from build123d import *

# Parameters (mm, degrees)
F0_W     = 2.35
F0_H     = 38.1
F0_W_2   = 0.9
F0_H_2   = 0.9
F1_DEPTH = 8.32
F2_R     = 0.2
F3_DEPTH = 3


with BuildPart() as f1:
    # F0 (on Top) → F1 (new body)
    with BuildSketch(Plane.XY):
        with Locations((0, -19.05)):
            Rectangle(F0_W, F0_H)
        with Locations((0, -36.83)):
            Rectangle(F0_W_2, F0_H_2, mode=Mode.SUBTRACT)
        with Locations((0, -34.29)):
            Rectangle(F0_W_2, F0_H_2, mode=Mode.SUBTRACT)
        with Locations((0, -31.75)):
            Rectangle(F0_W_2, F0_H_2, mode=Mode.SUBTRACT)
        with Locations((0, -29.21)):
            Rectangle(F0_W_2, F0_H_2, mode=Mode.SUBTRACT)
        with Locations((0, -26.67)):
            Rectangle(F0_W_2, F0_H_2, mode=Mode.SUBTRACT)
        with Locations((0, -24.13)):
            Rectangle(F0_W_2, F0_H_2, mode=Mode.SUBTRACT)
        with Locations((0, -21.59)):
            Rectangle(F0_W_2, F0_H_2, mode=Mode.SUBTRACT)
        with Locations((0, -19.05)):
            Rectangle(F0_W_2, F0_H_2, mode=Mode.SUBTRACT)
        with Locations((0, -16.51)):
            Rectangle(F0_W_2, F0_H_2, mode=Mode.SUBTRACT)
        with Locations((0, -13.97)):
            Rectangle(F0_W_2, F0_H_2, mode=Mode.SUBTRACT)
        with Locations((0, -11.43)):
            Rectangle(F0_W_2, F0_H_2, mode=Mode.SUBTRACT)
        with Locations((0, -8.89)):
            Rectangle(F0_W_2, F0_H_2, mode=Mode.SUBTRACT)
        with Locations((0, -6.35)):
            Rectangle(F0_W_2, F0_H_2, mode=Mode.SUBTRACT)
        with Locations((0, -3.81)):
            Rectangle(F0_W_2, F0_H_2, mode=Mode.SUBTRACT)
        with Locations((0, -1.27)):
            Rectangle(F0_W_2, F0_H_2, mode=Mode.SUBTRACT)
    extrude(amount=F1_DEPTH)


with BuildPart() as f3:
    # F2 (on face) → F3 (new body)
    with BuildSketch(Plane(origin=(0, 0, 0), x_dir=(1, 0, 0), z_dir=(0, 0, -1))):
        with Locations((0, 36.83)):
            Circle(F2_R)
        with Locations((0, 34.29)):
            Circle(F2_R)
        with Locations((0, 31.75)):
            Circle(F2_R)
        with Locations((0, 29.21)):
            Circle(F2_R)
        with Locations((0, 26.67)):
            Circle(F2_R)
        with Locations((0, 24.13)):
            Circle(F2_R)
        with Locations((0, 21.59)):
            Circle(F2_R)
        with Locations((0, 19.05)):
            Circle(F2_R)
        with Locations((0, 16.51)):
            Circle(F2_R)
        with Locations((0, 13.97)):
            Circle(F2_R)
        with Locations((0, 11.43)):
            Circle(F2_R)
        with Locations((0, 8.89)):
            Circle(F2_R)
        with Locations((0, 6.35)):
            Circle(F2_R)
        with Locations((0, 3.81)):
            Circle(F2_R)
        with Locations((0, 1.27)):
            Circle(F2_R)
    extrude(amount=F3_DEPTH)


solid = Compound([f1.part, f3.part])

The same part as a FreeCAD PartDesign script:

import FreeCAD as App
import Part
import Sketcher

V = App.Vector

doc = App.newDocument("Part")
body = doc.addObject("PartDesign::Body", "Body")

sketch1 = doc.addObject("Sketcher::SketchObject", "Sketch")
body.addObject(sketch1)
sketch1.AttachmentSupport = (doc.XY_Plane, [""])
sketch1.MapMode = "FlatFace"
sketch1.addGeometry([
    Part.LineSegment(V(-1.2, 0, 0), V(-1.2, -38.1, 0)),
    Part.LineSegment(V(-1.2, -38.1, 0), V(1.2, -38.1, 0)),
    Part.LineSegment(V(1.2, -38.1, 0), V(1.2, 0, 0)),
    Part.LineSegment(V(1.2, 0, 0), V(-1.2, 0, 0)),
    Part.LineSegment(V(0.5, -37.3, 0), V(-0.5, -37.3, 0)),
    Part.LineSegment(V(-0.5, -37.3, 0), V(-0.5, -36.4, 0)),
    Part.LineSegment(V(-0.5, -36.4, 0), V(0.5, -36.4, 0)),
    Part.LineSegment(V(0.5, -36.4, 0), V(0.5, -37.3, 0)),
    Part.LineSegment(V(0.5, -34.7, 0), V(-0.5, -34.7, 0)),
    Part.LineSegment(V(-0.5, -34.7, 0), V(-0.5, -33.8, 0)),
    Part.LineSegment(V(-0.5, -33.8, 0), V(0.5, -33.8, 0)),
    Part.LineSegment(V(0.5, -33.8, 0), V(0.5, -34.7, 0)),
    Part.LineSegment(V(0.5, -32.2, 0), V(-0.5, -32.2, 0)),
    Part.LineSegment(V(-0.5, -32.2, 0), V(-0.5, -31.3, 0)),
    Part.LineSegment(V(-0.5, -31.3, 0), V(0.5, -31.3, 0)),
    Part.LineSegment(V(0.5, -31.3, 0), V(0.5, -32.2, 0)),
    Part.LineSegment(V(0.5, -29.7, 0), V(-0.5, -29.7, 0)),
    Part.LineSegment(V(-0.5, -29.7, 0), V(-0.5, -28.8, 0)),
    Part.LineSegment(V(-0.5, -28.8, 0), V(0.5, -28.8, 0)),
    Part.LineSegment(V(0.5, -28.8, 0), V(0.5, -29.7, 0)),
    Part.LineSegment(V(0.5, -27.1, 0), V(-0.5, -27.1, 0)),
    Part.LineSegment(V(-0.5, -27.1, 0), V(-0.5, -26.2, 0)),
    Part.LineSegment(V(-0.5, -26.2, 0), V(0.5, -26.2, 0)),
    Part.LineSegment(V(0.5, -26.2, 0), V(0.5, -27.1, 0)),
    Part.LineSegment(V(0.5, -24.6, 0), V(-0.5, -24.6, 0)),
    Part.LineSegment(V(-0.5, -24.6, 0), V(-0.5, -23.7, 0)),
    Part.LineSegment(V(-0.5, -23.7, 0), V(0.5, -23.7, 0)),
    Part.LineSegment(V(0.5, -23.7, 0), V(0.5, -24.6, 0)),
    Part.LineSegment(V(0.5, -22, 0), V(-0.5, -22, 0)),
    Part.LineSegment(V(-0.5, -22, 0), V(-0.5, -21.1, 0)),
    Part.LineSegment(V(-0.5, -21.1, 0), V(0.5, -21.1, 0)),
    Part.LineSegment(V(0.5, -21.1, 0), V(0.5, -22, 0)),
    Part.LineSegment(V(0.5, -19.5, 0), V(-0.5, -19.5, 0)),
    Part.LineSegment(V(-0.5, -19.5, 0), V(-0.5, -18.6, 0)),
    Part.LineSegment(V(-0.5, -18.6, 0), V(0.5, -18.6, 0)),
    Part.LineSegment(V(0.5, -18.6, 0), V(0.5, -19.5, 0)),
    Part.LineSegment(V(0.5, -17, 0), V(-0.5, -17, 0)),
    Part.LineSegment(V(-0.5, -17, 0), V(-0.5, -16.1, 0)),
    Part.LineSegment(V(-0.5, -16.1, 0), V(0.5, -16.1, 0)),
    Part.LineSegment(V(0.5, -16.1, 0), V(0.5, -17, 0)),
    Part.LineSegment(V(0.5, -14.4, 0), V(-0.5, -14.4, 0)),
    Part.LineSegment(V(-0.5, -14.4, 0), V(-0.5, -13.5, 0)),
    Part.LineSegment(V(-0.5, -13.5, 0), V(0.5, -13.5, 0)),
    Part.LineSegment(V(0.5, -13.5, 0), V(0.5, -14.4, 0)),
    Part.LineSegment(V(0.5, -11.9, 0), V(-0.5, -11.9, 0)),
    Part.LineSegment(V(-0.5, -11.9, 0), V(-0.5, -11, 0)),
    Part.LineSegment(V(-0.5, -11, 0), V(0.5, -11, 0)),
    Part.LineSegment(V(0.5, -11, 0), V(0.5, -11.9, 0)),
    Part.LineSegment(V(0.5, -9.3, 0), V(-0.5, -9.3, 0)),
    Part.LineSegment(V(-0.5, -9.3, 0), V(-0.5, -8.4, 0)),
    Part.LineSegment(V(-0.5, -8.4, 0), V(0.5, -8.4, 0)),
    Part.LineSegment(V(0.5, -8.4, 0), V(0.5, -9.3, 0)),
    Part.LineSegment(V(0.5, -6.8, 0), V(-0.5, -6.8, 0)),
    Part.LineSegment(V(-0.5, -6.8, 0), V(-0.5, -5.9, 0)),
    Part.LineSegment(V(-0.5, -5.9, 0), V(0.5, -5.9, 0)),
    Part.LineSegment(V(0.5, -5.9, 0), V(0.5, -6.8, 0)),
    Part.LineSegment(V(0.5, -4.3, 0), V(-0.5, -4.3, 0)),
    Part.LineSegment(V(-0.5, -4.3, 0), V(-0.5, -3.4, 0)),
    Part.LineSegment(V(-0.5, -3.4, 0), V(0.5, -3.4, 0)),
    Part.LineSegment(V(0.5, -3.4, 0), V(0.5, -4.3, 0)),
    Part.LineSegment(V(0.5, -1.7, 0), V(-0.5, -1.7, 0)),
    Part.LineSegment(V(-0.5, -1.7, 0), V(-0.5, -0.8, 0)),
    Part.LineSegment(V(-0.5, -0.8, 0), V(0.5, -0.8, 0)),
    Part.LineSegment(V(0.5, -0.8, 0), V(0.5, -1.7, 0)),
], False)
sketch1.addConstraint([
    Sketcher.Constraint("Coincident", 0, 2, 1, 1),
    Sketcher.Constraint("Coincident", 1, 2, 2, 1),
    Sketcher.Constraint("Coincident", 2, 2, 3, 1),
    Sketcher.Constraint("Coincident", 3, 2, 0, 1),
    Sketcher.Constraint("Coincident", 4, 2, 5, 1),
    Sketcher.Constraint("Coincident", 5, 2, 6, 1),
    Sketcher.Constraint("Coincident", 6, 2, 7, 1),
    Sketcher.Constraint("Coincident", 7, 2, 4, 1),
    Sketcher.Constraint("Coincident", 8, 2, 9, 1),
    Sketcher.Constraint("Coincident", 9, 2, 10, 1),
    Sketcher.Constraint("Coincident", 10, 2, 11, 1),
    Sketcher.Constraint("Coincident", 11, 2, 8, 1),
    Sketcher.Constraint("Coincident", 12, 2, 13, 1),
    Sketcher.Constraint("Coincident", 13, 2, 14, 1),
    Sketcher.Constraint("Coincident", 14, 2, 15, 1),
    Sketcher.Constraint("Coincident", 15, 2, 12, 1),
    Sketcher.Constraint("Coincident", 16, 2, 17, 1),
    Sketcher.Constraint("Coincident", 17, 2, 18, 1),
    Sketcher.Constraint("Coincident", 18, 2, 19, 1),
    Sketcher.Constraint("Coincident", 19, 2, 16, 1),
    Sketcher.Constraint("Coincident", 20, 2, 21, 1),
    Sketcher.Constraint("Coincident", 21, 2, 22, 1),
    Sketcher.Constraint("Coincident", 22, 2, 23, 1),
    Sketcher.Constraint("Coincident", 23, 2, 20, 1),
    Sketcher.Constraint("Coincident", 24, 2, 25, 1),
    Sketcher.Constraint("Coincident", 25, 2, 26, 1),
    Sketcher.Constraint("Coincident", 26, 2, 27, 1),
    Sketcher.Constraint("Coincident", 27, 2, 24, 1),
    Sketcher.Constraint("Coincident", 28, 2, 29, 1),
    Sketcher.Constraint("Coincident", 29, 2, 30, 1),
    Sketcher.Constraint("Coincident", 30, 2, 31, 1),
    Sketcher.Constraint("Coincident", 31, 2, 28, 1),
    Sketcher.Constraint("Coincident", 32, 2, 33, 1),
    Sketcher.Constraint("Coincident", 33, 2, 34, 1),
    Sketcher.Constraint("Coincident", 34, 2, 35, 1),
    Sketcher.Constraint("Coincident", 35, 2, 32, 1),
    Sketcher.Constraint("Coincident", 36, 2, 37, 1),
    Sketcher.Constraint("Coincident", 37, 2, 38, 1),
    Sketcher.Constraint("Coincident", 38, 2, 39, 1),
    Sketcher.Constraint("Coincident", 39, 2, 36, 1),
    Sketcher.Constraint("Coincident", 40, 2, 41, 1),
    Sketcher.Constraint("Coincident", 41, 2, 42, 1),
    Sketcher.Constraint("Coincident", 42, 2, 43, 1),
    Sketcher.Constraint("Coincident", 43, 2, 40, 1),
    Sketcher.Constraint("Coincident", 44, 2, 45, 1),
    Sketcher.Constraint("Coincident", 45, 2, 46, 1),
    Sketcher.Constraint("Coincident", 46, 2, 47, 1),
    Sketcher.Constraint("Coincident", 47, 2, 44, 1),
    Sketcher.Constraint("Coincident", 48, 2, 49, 1),
    Sketcher.Constraint("Coincident", 49, 2, 50, 1),
    Sketcher.Constraint("Coincident", 50, 2, 51, 1),
    Sketcher.Constraint("Coincident", 51, 2, 48, 1),
    Sketcher.Constraint("Coincident", 52, 2, 53, 1),
    Sketcher.Constraint("Coincident", 53, 2, 54, 1),
    Sketcher.Constraint("Coincident", 54, 2, 55, 1),
    Sketcher.Constraint("Coincident", 55, 2, 52, 1),
    Sketcher.Constraint("Coincident", 56, 2, 57, 1),
    Sketcher.Constraint("Coincident", 57, 2, 58, 1),
    Sketcher.Constraint("Coincident", 58, 2, 59, 1),
    Sketcher.Constraint("Coincident", 59, 2, 56, 1),
    Sketcher.Constraint("Coincident", 60, 2, 61, 1),
    Sketcher.Constraint("Coincident", 61, 2, 62, 1),
    Sketcher.Constraint("Coincident", 62, 2, 63, 1),
    Sketcher.Constraint("Coincident", 63, 2, 60, 1),
    Sketcher.Constraint("Vertical", 0),
    Sketcher.Constraint("Horizontal", 1),
    Sketcher.Constraint("Vertical", 2),
    Sketcher.Constraint("Horizontal", 3),
    Sketcher.Constraint("Horizontal", 4),
    Sketcher.Constraint("Vertical", 5),
    Sketcher.Constraint("Horizontal", 6),
    Sketcher.Constraint("Vertical", 7),
    Sketcher.Constraint("Horizontal", 8),
    Sketcher.Constraint("Vertical", 9),
    Sketcher.Constraint("Horizontal", 10),
    Sketcher.Constraint("Vertical", 11),
    Sketcher.Constraint("Horizontal", 12),
    Sketcher.Constraint("Vertical", 13),
    Sketcher.Constraint("Horizontal", 14),
    Sketcher.Constraint("Vertical", 15),
    Sketcher.Constraint("Horizontal", 16),
    Sketcher.Constraint("Vertical", 17),
    Sketcher.Constraint("Horizontal", 18),
    Sketcher.Constraint("Vertical", 19),
    Sketcher.Constraint("Horizontal", 20),
    Sketcher.Constraint("Vertical", 21),
    Sketcher.Constraint("Horizontal", 22),
    Sketcher.Constraint("Vertical", 23),
    Sketcher.Constraint("Horizontal", 24),
    Sketcher.Constraint("Vertical", 25),
    Sketcher.Constraint("Horizontal", 26),
    Sketcher.Constraint("Vertical", 27),
    Sketcher.Constraint("Horizontal", 28),
    Sketcher.Constraint("Vertical", 29),
    Sketcher.Constraint("Horizontal", 30),
    Sketcher.Constraint("Vertical", 31),
    Sketcher.Constraint("Horizontal", 32),
    Sketcher.Constraint("Vertical", 33),
    Sketcher.Constraint("Horizontal", 34),
    Sketcher.Constraint("Vertical", 35),
    Sketcher.Constraint("Horizontal", 36),
    Sketcher.Constraint("Vertical", 37),
    Sketcher.Constraint("Horizontal", 38),
    Sketcher.Constraint("Vertical", 39),
    Sketcher.Constraint("Horizontal", 40),
    Sketcher.Constraint("Vertical", 41),
    Sketcher.Constraint("Horizontal", 42),
    Sketcher.Constraint("Vertical", 43),
    Sketcher.Constraint("Horizontal", 44),
    Sketcher.Constraint("Vertical", 45),
    Sketcher.Constraint("Horizontal", 46),
    Sketcher.Constraint("Vertical", 47),
    Sketcher.Constraint("Horizontal", 48),
    Sketcher.Constraint("Vertical", 49),
    Sketcher.Constraint("Horizontal", 50),
    Sketcher.Constraint("Vertical", 51),
    Sketcher.Constraint("Horizontal", 52),
    Sketcher.Constraint("Vertical", 53),
    Sketcher.Constraint("Horizontal", 54),
    Sketcher.Constraint("Vertical", 55),
    Sketcher.Constraint("Horizontal", 56),
    Sketcher.Constraint("Vertical", 57),
    Sketcher.Constraint("Horizontal", 58),
    Sketcher.Constraint("Vertical", 59),
    Sketcher.Constraint("Horizontal", 60),
    Sketcher.Constraint("Vertical", 61),
    Sketcher.Constraint("Horizontal", 62),
    Sketcher.Constraint("Vertical", 63),
    Sketcher.Constraint("Symmetric", 2, 2, 3, 2, -1, 1),
    Sketcher.Constraint("Vertical", 5, 2, 8, 2),
    Sketcher.Constraint("Vertical", 7, 2, 10, 2),
    Sketcher.Constraint("Vertical", 9, 2, 12, 2),
    Sketcher.Constraint("Vertical", 11, 2, 14, 2),
    Sketcher.Constraint("Vertical", 13, 2, 16, 2),
    Sketcher.Constraint("Vertical", 15, 2, 18, 2),
    Sketcher.Constraint("Vertical", 17, 2, 20, 2),
    Sketcher.Constraint("Vertical", 19, 2, 22, 2),
    Sketcher.Constraint("Vertical", 21, 2, 24, 2),
    Sketcher.Constraint("Vertical", 23, 2, 26, 2),
    Sketcher.Constraint("Vertical", 25, 2, 28, 2),
    Sketcher.Constraint("Vertical", 27, 2, 30, 2),
    Sketcher.Constraint("Vertical", 29, 2, 32, 2),
    Sketcher.Constraint("Vertical", 31, 2, 34, 2),
    Sketcher.Constraint("Vertical", 33, 2, 36, 2),
    Sketcher.Constraint("Vertical", 35, 2, 38, 2),
    Sketcher.Constraint("Vertical", 37, 2, 40, 2),
    Sketcher.Constraint("Vertical", 39, 2, 42, 2),
    Sketcher.Constraint("Vertical", 41, 2, 44, 2),
    Sketcher.Constraint("Vertical", 43, 2, 46, 2),
    Sketcher.Constraint("Vertical", 45, 2, 48, 2),
    Sketcher.Constraint("Vertical", 47, 2, 50, 2),
    Sketcher.Constraint("Vertical", 49, 2, 52, 2),
    Sketcher.Constraint("Vertical", 51, 2, 54, 2),
    Sketcher.Constraint("Vertical", 53, 2, 56, 2),
    Sketcher.Constraint("Vertical", 55, 2, 58, 2),
    Sketcher.Constraint("Vertical", 57, 2, 60, 2),
    Sketcher.Constraint("Vertical", 59, 2, 62, 2),
    Sketcher.Constraint("Equal", 62, 5),
    Sketcher.Constraint("Equal", 7, 9),
    Sketcher.Constraint("Equal", 11, 13),
    Sketcher.Constraint("Equal", 15, 17),
    Sketcher.Constraint("Equal", 19, 21),
    Sketcher.Constraint("Equal", 23, 25),
    Sketcher.Constraint("Equal", 27, 29),
    Sketcher.Constraint("Equal", 31, 33),
    Sketcher.Constraint("Equal", 35, 37),
    Sketcher.Constraint("Equal", 39, 41),
    Sketcher.Constraint("Equal", 43, 45),
    Sketcher.Constraint("Equal", 47, 49),
    Sketcher.Constraint("Equal", 51, 53),
    Sketcher.Constraint("Equal", 55, 57),
    Sketcher.Constraint("Equal", 59, 61),
    Sketcher.Constraint("DistanceX", 4, 2, 4, 1, 0.9),
    Sketcher.Constraint("DistanceY", 0, 2, 0, 1, 38.1),
    Sketcher.Constraint("DistanceX", 1, 1, 1, 2, 2.35),
    Sketcher.Constraint("DistanceY", 12, 2, -1, 1, 32.2),
    Sketcher.Constraint("DistanceY", 32, 2, -1, 1, 19.5),
    Sketcher.Constraint("DistanceY", 52, 2, -1, 1, 6.8),
    Sketcher.Constraint("DistanceX", 4, 2, -1, 1, 0.45),
    Sketcher.Constraint("DistanceY", 4, 2, -1, 1, 37.28),
    Sketcher.Constraint("DistanceY", 8, 2, -1, 1, 34.74),
    Sketcher.Constraint("DistanceY", 16, 2, -1, 1, 29.66),
    Sketcher.Constraint("DistanceY", 20, 2, -1, 1, 27.12),
    Sketcher.Constraint("DistanceY", 24, 2, -1, 1, 24.58),
    Sketcher.Constraint("DistanceY", 28, 2, -1, 1, 22.04),
    Sketcher.Constraint("DistanceY", 36, 2, -1, 1, 16.96),
    Sketcher.Constraint("DistanceY", 40, 2, -1, 1, 14.42),
    Sketcher.Constraint("DistanceY", 44, 2, -1, 1, 11.88),
    Sketcher.Constraint("DistanceY", 48, 2, -1, 1, 9.34),
    Sketcher.Constraint("DistanceY", 56, 2, -1, 1, 4.26),
    Sketcher.Constraint("DistanceY", 60, 2, -1, 1, 1.72),
])
pad1 = doc.addObject("PartDesign::Pad", "Pad")
body.addObject(pad1)
pad1.Profile = sketch1
pad1.Length = 8.32
body2 = doc.addObject("PartDesign::Body", "Body001")
body2.AllowCompound = True

sketch2 = doc.addObject("Sketcher::SketchObject", "Sketch001")
body2.addObject(sketch2)
sketch2.AttachmentSupport = (doc.getObject("XY_Plane001"), [""])
sketch2.MapMode = "FlatFace"
sketch2.addGeometry([
    Part.Circle(V(0, -36.83, 0), V(0, 0, 1), 0.2),
    Part.Circle(V(0, -34.29, 0), V(0, 0, 1), 0.2),
    Part.Circle(V(0, -31.75, 0), V(0, 0, 1), 0.2),
    Part.Circle(V(0, -29.21, 0), V(0, 0, 1), 0.2),
    Part.Circle(V(0, -26.67, 0), V(0, 0, 1), 0.2),
    Part.Circle(V(0, -24.13, 0), V(0, 0, 1), 0.2),
    Part.Circle(V(0, -21.59, 0), V(0, 0, 1), 0.2),
    Part.Circle(V(0, -19.05, 0), V(0, 0, 1), 0.2),
    Part.Circle(V(0, -16.51, 0), V(0, 0, 1), 0.2),
    Part.Circle(V(0, -13.97, 0), V(0, 0, 1), 0.2),
    Part.Circle(V(0, -11.43, 0), V(0, 0, 1), 0.2),
    Part.Circle(V(0, -8.89, 0), V(0, 0, 1), 0.2),
    Part.Circle(V(0, -6.35, 0), V(0, 0, 1), 0.2),
    Part.Circle(V(0, -3.81, 0), V(0, 0, 1), 0.2),
    Part.Circle(V(0, -1.27, 0), V(0, 0, 1), 0.2),
], False)
sketch2.addConstraint([
    Sketcher.Constraint("Equal", 0, 1),
    Sketcher.Constraint("Equal", 1, 2),
    Sketcher.Constraint("Equal", 2, 3),
    Sketcher.Constraint("Equal", 3, 4),
    Sketcher.Constraint("Equal", 4, 5),
    Sketcher.Constraint("Equal", 5, 6),
    Sketcher.Constraint("Equal", 6, 7),
    Sketcher.Constraint("Equal", 7, 8),
    Sketcher.Constraint("Equal", 8, 9),
    Sketcher.Constraint("Equal", 9, 10),
    Sketcher.Constraint("Equal", 10, 11),
    Sketcher.Constraint("Equal", 11, 12),
    Sketcher.Constraint("Equal", 12, 13),
    Sketcher.Constraint("Equal", 13, 14),
    Sketcher.Constraint("PointOnObject", 0, 3, -2),
    Sketcher.Constraint("PointOnObject", 1, 3, -2),
    Sketcher.Constraint("PointOnObject", 2, 3, -2),
    Sketcher.Constraint("PointOnObject", 3, 3, -2),
    Sketcher.Constraint("PointOnObject", 4, 3, -2),
    Sketcher.Constraint("PointOnObject", 5, 3, -2),
    Sketcher.Constraint("PointOnObject", 6, 3, -2),
    Sketcher.Constraint("PointOnObject", 7, 3, -2),
    Sketcher.Constraint("PointOnObject", 8, 3, -2),
    Sketcher.Constraint("PointOnObject", 9, 3, -2),
    Sketcher.Constraint("PointOnObject", 10, 3, -2),
    Sketcher.Constraint("PointOnObject", 11, 3, -2),
    Sketcher.Constraint("PointOnObject", 12, 3, -2),
    Sketcher.Constraint("PointOnObject", 13, 3, -2),
    Sketcher.Constraint("PointOnObject", 14, 3, -2),
    Sketcher.Constraint("Diameter", 0, 0.4),
    Sketcher.Constraint("DistanceY", 0, 3, 5, 3, 12.7),
    Sketcher.Constraint("DistanceY", 1, 3, 6, 3, 12.7),
    Sketcher.Constraint("DistanceY", 2, 3, 7, 3, 12.7),
    Sketcher.Constraint("DistanceY", 3, 3, 8, 3, 12.7),
    Sketcher.Constraint("DistanceY", 4, 3, 9, 3, 12.7),
    Sketcher.Constraint("DistanceY", 5, 3, 10, 3, 12.7),
    Sketcher.Constraint("DistanceY", 6, 3, 11, 3, 12.7),
    Sketcher.Constraint("DistanceY", 7, 3, 12, 3, 12.7),
    Sketcher.Constraint("DistanceY", 8, 3, 13, 3, 12.7),
    Sketcher.Constraint("DistanceY", 9, 3, 14, 3, 12.7),
    Sketcher.Constraint("DistanceY", 0, 3, -1, 1, 36.83),
    Sketcher.Constraint("DistanceY", 1, 3, -1, 1, 34.29),
    Sketcher.Constraint("DistanceY", 2, 3, -1, 1, 31.75),
    Sketcher.Constraint("DistanceY", 3, 3, -1, 1, 29.21),
    Sketcher.Constraint("DistanceY", 4, 3, -1, 1, 26.67),
])
pad2 = doc.addObject("PartDesign::Pad", "Pad001")
body2.addObject(pad2)
pad2.Profile = sketch2
pad2.Length = 3
pad2.Reversed = True

doc.recompute()
